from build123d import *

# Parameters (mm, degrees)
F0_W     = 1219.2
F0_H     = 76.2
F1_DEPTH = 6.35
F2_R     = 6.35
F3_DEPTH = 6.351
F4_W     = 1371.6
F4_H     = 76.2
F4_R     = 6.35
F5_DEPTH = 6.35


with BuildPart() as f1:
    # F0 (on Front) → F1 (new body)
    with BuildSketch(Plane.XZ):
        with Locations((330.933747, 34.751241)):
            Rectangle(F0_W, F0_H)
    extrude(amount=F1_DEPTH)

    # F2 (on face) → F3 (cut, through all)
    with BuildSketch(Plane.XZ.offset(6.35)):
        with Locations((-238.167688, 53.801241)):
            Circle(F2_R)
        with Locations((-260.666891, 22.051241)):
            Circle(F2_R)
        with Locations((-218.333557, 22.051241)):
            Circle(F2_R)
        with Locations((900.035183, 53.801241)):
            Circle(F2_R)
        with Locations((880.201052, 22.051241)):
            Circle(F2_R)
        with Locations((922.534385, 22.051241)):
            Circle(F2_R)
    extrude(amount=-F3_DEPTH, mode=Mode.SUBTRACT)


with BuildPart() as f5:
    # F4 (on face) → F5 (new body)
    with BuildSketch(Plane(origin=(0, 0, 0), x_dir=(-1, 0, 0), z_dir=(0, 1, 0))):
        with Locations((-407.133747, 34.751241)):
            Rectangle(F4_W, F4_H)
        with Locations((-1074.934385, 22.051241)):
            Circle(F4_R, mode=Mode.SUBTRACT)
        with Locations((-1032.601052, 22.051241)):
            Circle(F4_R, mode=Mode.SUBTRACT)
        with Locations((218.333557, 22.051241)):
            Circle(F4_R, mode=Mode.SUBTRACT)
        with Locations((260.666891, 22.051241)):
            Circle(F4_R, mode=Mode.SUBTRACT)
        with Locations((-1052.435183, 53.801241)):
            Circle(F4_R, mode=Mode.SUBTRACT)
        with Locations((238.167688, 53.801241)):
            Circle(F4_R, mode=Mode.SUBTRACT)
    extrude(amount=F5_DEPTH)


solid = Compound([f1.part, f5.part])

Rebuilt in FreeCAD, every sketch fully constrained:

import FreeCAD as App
import Part
import Sketcher
from FreeCAD import Vector
Q = App.Units.Quantity

doc = App.newDocument("Part")
params = doc.addObject("Spreadsheet::Sheet", "Params")
for row, (alias, value) in enumerate([
    ("sketch1_width", "48 in"),
    ("sketch1_height", "3 in"),
    ("pad1_length", "0.25 in"),
    ("sketch2_diameter", "0.5 in"),
    ("sketch3_diameter", "0.5 in"),
    ("sketch3_width", "54 in"),
    ("sketch3_height", "3 in"),
    ("pad2_length", "0.25 in"),
], start=1):
    params.set(f"A{row}", alias)
    params.set(f"B{row}", "=" + value)
    params.setAlias(f"B{row}", alias)

body = doc.addObject("PartDesign::Body", "Body")

sketch1 = body.newObject("Sketcher::SketchObject", "Sketch")
sketch1.AttachmentSupport = (doc.getObject("XZ_Plane"), [""])
sketch1.MapMode = "FlatFace"
sketch1.addGeometry(Part.LineSegment(Vector(-279, 73, 0), Vector(-279, -3, 0)), False)
sketch1.addGeometry(Part.LineSegment(Vector(-279, -3, 0), Vector(941, -3, 0)), False)
sketch1.addGeometry(Part.LineSegment(Vector(941, -3, 0), Vector(941, 73, 0)), False)
sketch1.addGeometry(Part.LineSegment(Vector(941, 73, 0), Vector(-279, 73, 0)), False)
sketch1.addConstraint(Sketcher.Constraint("Coincident", 0, 2, 1, 1))
sketch1.addConstraint(Sketcher.Constraint("Coincident", 1, 2, 2, 1))
sketch1.addConstraint(Sketcher.Constraint("Coincident", 2, 2, 3, 1))
sketch1.addConstraint(Sketcher.Constraint("Coincident", 3, 2, 0, 1))
sketch1.addConstraint(Sketcher.Constraint("Vertical", 0))
sketch1.addConstraint(Sketcher.Constraint("Horizontal", 1))
sketch1.addConstraint(Sketcher.Constraint("Vertical", 2))
sketch1.addConstraint(Sketcher.Constraint("Horizontal", 3))
sketch1.addConstraint(Sketcher.Constraint("DistanceX", 1, 1, 1, 2, Q("48 in")))
sketch1.addConstraint(Sketcher.Constraint("DistanceY", 0, 2, 0, 1, Q("3 in")))
sketch1.addConstraint(Sketcher.Constraint("DistanceY", 0, 2, -1, 1, 3.348759))
sketch1.addConstraint(Sketcher.Constraint("DistanceX", 0, 2, -1, 1, 278.666253))
sketch1.setExpression("Constraints[8]", "Params.sketch1_width")
sketch1.setExpression("Constraints[9]", "Params.sketch1_height")
pad1 = body.newObject("PartDesign::Pad", "Pad")
pad1.Profile = sketch1
pad1.setExpression("Length", "Params.pad1_length")

sketch2 = body.newObject("Sketcher::SketchObject", "Sketch001")
sketch2.AttachmentSupport = (doc.getObject("XZ_Plane"), [""])
sketch2.MapMode = "FlatFace"
sketch2.AttachmentOffset = App.Placement(Vector(0, 0, 0.25 * 25.4), App.Rotation())
sketch2.addGeometry(Part.Circle(Vector(-238, 54, 0), Vector(0, 0, 1), 6), False)
sketch2.addGeometry(Part.Circle(Vector(-261, 22, 0), Vector(0, 0, 1), 6), False)
sketch2.addGeometry(Part.Circle(Vector(-218, 22, 0), Vector(0, 0, 1), 6), False)
sketch2.addGeometry(Part.Circle(Vector(900, 54, 0), Vector(0, 0, 1), 6), False)
sketch2.addGeometry(Part.Circle(Vector(880, 22, 0), Vector(0, 0, 1), 6), False)
sketch2.addGeometry(Part.Circle(Vector(923, 22, 0), Vector(0, 0, 1), 6), False)
sketch2.addConstraint(Sketcher.Constraint("Equal", 0, 1))
sketch2.addConstraint(Sketcher.Constraint("Equal", 1, 2))
sketch2.addConstraint(Sketcher.Constraint("Equal", 2, 3))
sketch2.addConstraint(Sketcher.Constraint("Equal", 3, 4))
sketch2.addConstraint(Sketcher.Constraint("Equal", 4, 5))
sketch2.addConstraint(Sketcher.Constraint("Horizontal", 1, 3, 2, 3))
sketch2.addConstraint(Sketcher.Constraint("Horizontal", 0, 3, 3, 3))
sketch2.addConstraint(Sketcher.Constraint("Horizontal", 2, 3, 4, 3))
sketch2.addConstraint(Sketcher.Constraint("Horizontal", 4, 3, 5, 3))
sketch2.addConstraint(Sketcher.Constraint("Diameter", 0, Q("0.5 in")))
sketch2.addConstraint(Sketcher.Constraint("DistanceY", 1, 3, 0, 3, Q("1.25 in")))
sketch2.addConstraint(Sketcher.Constraint("DistanceX", 0, 3, -1, 1, 238.167688))
sketch2.addConstraint(Sketcher.Constraint("DistanceY", -1, 1, 0, 3, 53.801241))
sketch2.addConstraint(Sketcher.Constraint("DistanceX", 1, 3, -1, 1, 260.666891))
sketch2.addConstraint(Sketcher.Constraint("DistanceX", -1, 1, 4, 3, 880.201052))
sketch2.addConstraint(Sketcher.Constraint("DistanceX", 0, 3, 2, 3, 19.834131))
sketch2.addConstraint(Sketcher.Constraint("DistanceX", 2, 3, 3, 3, 1118.36874))
sketch2.addConstraint(Sketcher.Constraint("DistanceX", 2, 3, 5, 3, 1140.867942))
sketch2.setExpression("Constraints[9]", "Params.sketch2_diameter")
pocket1 = body.newObject("PartDesign::Pocket", "Pocket")
pocket1.Profile = sketch2
pocket1.Type = "ThroughAll"
body2 = doc.addObject("PartDesign::Body", "Body001")

sketch3 = body2.newObject("Sketcher::SketchObject", "Sketch002")
sketch3.AttachmentSupport = (doc.getObject("XZ_Plane001"), [""])
sketch3.MapMode = "FlatFace"
sketch3.addGeometry(Part.LineSegment(Vector(1093, 73, 0), Vector(1093, -3, 0)), False)
sketch3.addGeometry(Part.LineSegment(Vector(1093, -3, 0), Vector(-279, -3, 0)), False)
sketch3.addGeometry(Part.LineSegment(Vector(-279, -3, 0), Vector(-279, 73, 0)), False)
sketch3.addGeometry(Part.LineSegment(Vector(-279, 73, 0), Vector(1093, 73, 0)), False)
sketch3.addGeometry(Part.Circle(Vector(1075, 22, 0), Vector(0, 0, 1), 6), False)
sketch3.addGeometry(Part.Circle(Vector(1033, 22, 0), Vector(0, 0, 1), 6), False)
sketch3.addGeometry(Part.Circle(Vector(-218, 22, 0), Vector(0, 0, 1), 6), False)
sketch3.addGeometry(Part.Circle(Vector(-261, 22, 0), Vector(0, 0, 1), 6), False)
sketch3.addGeometry(Part.Circle(Vector(1052, 54, 0), Vector(0, 0, 1), 6), False)
sketch3.addGeometry(Part.Circle(Vector(-238, 54, 0), Vector(0, 0, 1), 6), False)
sketch3.addConstraint(Sketcher.Constraint("Coincident", 0, 2, 1, 1))
sketch3.addConstraint(Sketcher.Constraint("Coincident", 1, 2, 2, 1))
sketch3.addConstraint(Sketcher.Constraint("Coincident", 2, 2, 3, 1))
sketch3.addConstraint(Sketcher.Constraint("Coincident", 3, 2, 0, 1))
sketch3.addConstraint(Sketcher.Constraint("Vertical", 0))
sketch3.addConstraint(Sketcher.Constraint("Horizontal", 1))
sketch3.addConstraint(Sketcher.Constraint("Vertical", 2))
sketch3.addConstraint(Sketcher.Constraint("Horizontal", 3))
sketch3.addConstraint(Sketcher.Constraint("Equal", 4, 5))
sketch3.addConstraint(Sketcher.Constraint("Equal", 5, 6))
sketch3.addConstraint(Sketcher.Constraint("Equal", 6, 7))
sketch3.addConstraint(Sketcher.Constraint("Equal", 7, 8))
sketch3.addConstraint(Sketcher.Constraint("Equal", 8, 9))
sketch3.addConstraint(Sketcher.Constraint("Horizontal", 4, 3, 5, 3))
sketch3.addConstraint(Sketcher.Constraint("Horizontal", 5, 3, 6, 3))
sketch3.addConstraint(Sketcher.Constraint("Horizontal", 6, 3, 7, 3))
sketch3.addConstraint(Sketcher.Constraint("Horizontal", 8, 3, 9, 3))
sketch3.addConstraint(Sketcher.Constraint("Diameter", 4, Q("0.5 in")))
sketch3.addConstraint(Sketcher.Constraint("DistanceX", 1, 2, 1, 1, Q("54 in")))
sketch3.addConstraint(Sketcher.Constraint("DistanceY", 0, 2, 0, 1, Q("3 in")))
sketch3.addConstraint(Sketcher.Constraint("DistanceY", 0, 2, 4, 3, Q("1 in")))
sketch3.addConstraint(Sketcher.Constraint("DistanceY", 5, 3, 8, 3, Q("1.25 in")))
sketch3.addConstraint(Sketcher.Constraint("DistanceX", 8, 3, 4, 3, 22.499202))
sketch3.addConstraint(Sketcher.Constraint("DistanceY", -1, 1, 4, 3, 22.051241))
sketch3.addConstraint(Sketcher.Constraint("DistanceX", -1, 1, 5, 3, 1032.601052))
sketch3.addConstraint(Sketcher.Constraint("DistanceX", 7, 3, -1, 1, 260.666891))
sketch3.addConstraint(Sketcher.Constraint("DistanceX", 9, 3, -1, 1, 238.167688))
sketch3.addConstraint(Sketcher.Constraint("DistanceX", 6, 3, 5, 3, 1250.934609))
sketch3.addConstraint(Sketcher.Constraint("DistanceX", 6, 3, 4, 3, 1293.267942))
sketch3.addConstraint(Sketcher.Constraint("DistanceX", 1, 2, 7, 3, 17.999362))
sketch3.setExpression("Constraints[17]", "Params.sketch3_diameter")
sketch3.setExpression("Constraints[18]", "Params.sketch3_width")
sketch3.setExpression("Constraints[19]", "Params.sketch3_height")
pad2 = body2.newObject("PartDesign::Pad", "Pad001")
pad2.Profile = sketch3
pad2.setExpression("Length", "Params.pad2_length")
pad2.Reversed = True

doc.recompute()
